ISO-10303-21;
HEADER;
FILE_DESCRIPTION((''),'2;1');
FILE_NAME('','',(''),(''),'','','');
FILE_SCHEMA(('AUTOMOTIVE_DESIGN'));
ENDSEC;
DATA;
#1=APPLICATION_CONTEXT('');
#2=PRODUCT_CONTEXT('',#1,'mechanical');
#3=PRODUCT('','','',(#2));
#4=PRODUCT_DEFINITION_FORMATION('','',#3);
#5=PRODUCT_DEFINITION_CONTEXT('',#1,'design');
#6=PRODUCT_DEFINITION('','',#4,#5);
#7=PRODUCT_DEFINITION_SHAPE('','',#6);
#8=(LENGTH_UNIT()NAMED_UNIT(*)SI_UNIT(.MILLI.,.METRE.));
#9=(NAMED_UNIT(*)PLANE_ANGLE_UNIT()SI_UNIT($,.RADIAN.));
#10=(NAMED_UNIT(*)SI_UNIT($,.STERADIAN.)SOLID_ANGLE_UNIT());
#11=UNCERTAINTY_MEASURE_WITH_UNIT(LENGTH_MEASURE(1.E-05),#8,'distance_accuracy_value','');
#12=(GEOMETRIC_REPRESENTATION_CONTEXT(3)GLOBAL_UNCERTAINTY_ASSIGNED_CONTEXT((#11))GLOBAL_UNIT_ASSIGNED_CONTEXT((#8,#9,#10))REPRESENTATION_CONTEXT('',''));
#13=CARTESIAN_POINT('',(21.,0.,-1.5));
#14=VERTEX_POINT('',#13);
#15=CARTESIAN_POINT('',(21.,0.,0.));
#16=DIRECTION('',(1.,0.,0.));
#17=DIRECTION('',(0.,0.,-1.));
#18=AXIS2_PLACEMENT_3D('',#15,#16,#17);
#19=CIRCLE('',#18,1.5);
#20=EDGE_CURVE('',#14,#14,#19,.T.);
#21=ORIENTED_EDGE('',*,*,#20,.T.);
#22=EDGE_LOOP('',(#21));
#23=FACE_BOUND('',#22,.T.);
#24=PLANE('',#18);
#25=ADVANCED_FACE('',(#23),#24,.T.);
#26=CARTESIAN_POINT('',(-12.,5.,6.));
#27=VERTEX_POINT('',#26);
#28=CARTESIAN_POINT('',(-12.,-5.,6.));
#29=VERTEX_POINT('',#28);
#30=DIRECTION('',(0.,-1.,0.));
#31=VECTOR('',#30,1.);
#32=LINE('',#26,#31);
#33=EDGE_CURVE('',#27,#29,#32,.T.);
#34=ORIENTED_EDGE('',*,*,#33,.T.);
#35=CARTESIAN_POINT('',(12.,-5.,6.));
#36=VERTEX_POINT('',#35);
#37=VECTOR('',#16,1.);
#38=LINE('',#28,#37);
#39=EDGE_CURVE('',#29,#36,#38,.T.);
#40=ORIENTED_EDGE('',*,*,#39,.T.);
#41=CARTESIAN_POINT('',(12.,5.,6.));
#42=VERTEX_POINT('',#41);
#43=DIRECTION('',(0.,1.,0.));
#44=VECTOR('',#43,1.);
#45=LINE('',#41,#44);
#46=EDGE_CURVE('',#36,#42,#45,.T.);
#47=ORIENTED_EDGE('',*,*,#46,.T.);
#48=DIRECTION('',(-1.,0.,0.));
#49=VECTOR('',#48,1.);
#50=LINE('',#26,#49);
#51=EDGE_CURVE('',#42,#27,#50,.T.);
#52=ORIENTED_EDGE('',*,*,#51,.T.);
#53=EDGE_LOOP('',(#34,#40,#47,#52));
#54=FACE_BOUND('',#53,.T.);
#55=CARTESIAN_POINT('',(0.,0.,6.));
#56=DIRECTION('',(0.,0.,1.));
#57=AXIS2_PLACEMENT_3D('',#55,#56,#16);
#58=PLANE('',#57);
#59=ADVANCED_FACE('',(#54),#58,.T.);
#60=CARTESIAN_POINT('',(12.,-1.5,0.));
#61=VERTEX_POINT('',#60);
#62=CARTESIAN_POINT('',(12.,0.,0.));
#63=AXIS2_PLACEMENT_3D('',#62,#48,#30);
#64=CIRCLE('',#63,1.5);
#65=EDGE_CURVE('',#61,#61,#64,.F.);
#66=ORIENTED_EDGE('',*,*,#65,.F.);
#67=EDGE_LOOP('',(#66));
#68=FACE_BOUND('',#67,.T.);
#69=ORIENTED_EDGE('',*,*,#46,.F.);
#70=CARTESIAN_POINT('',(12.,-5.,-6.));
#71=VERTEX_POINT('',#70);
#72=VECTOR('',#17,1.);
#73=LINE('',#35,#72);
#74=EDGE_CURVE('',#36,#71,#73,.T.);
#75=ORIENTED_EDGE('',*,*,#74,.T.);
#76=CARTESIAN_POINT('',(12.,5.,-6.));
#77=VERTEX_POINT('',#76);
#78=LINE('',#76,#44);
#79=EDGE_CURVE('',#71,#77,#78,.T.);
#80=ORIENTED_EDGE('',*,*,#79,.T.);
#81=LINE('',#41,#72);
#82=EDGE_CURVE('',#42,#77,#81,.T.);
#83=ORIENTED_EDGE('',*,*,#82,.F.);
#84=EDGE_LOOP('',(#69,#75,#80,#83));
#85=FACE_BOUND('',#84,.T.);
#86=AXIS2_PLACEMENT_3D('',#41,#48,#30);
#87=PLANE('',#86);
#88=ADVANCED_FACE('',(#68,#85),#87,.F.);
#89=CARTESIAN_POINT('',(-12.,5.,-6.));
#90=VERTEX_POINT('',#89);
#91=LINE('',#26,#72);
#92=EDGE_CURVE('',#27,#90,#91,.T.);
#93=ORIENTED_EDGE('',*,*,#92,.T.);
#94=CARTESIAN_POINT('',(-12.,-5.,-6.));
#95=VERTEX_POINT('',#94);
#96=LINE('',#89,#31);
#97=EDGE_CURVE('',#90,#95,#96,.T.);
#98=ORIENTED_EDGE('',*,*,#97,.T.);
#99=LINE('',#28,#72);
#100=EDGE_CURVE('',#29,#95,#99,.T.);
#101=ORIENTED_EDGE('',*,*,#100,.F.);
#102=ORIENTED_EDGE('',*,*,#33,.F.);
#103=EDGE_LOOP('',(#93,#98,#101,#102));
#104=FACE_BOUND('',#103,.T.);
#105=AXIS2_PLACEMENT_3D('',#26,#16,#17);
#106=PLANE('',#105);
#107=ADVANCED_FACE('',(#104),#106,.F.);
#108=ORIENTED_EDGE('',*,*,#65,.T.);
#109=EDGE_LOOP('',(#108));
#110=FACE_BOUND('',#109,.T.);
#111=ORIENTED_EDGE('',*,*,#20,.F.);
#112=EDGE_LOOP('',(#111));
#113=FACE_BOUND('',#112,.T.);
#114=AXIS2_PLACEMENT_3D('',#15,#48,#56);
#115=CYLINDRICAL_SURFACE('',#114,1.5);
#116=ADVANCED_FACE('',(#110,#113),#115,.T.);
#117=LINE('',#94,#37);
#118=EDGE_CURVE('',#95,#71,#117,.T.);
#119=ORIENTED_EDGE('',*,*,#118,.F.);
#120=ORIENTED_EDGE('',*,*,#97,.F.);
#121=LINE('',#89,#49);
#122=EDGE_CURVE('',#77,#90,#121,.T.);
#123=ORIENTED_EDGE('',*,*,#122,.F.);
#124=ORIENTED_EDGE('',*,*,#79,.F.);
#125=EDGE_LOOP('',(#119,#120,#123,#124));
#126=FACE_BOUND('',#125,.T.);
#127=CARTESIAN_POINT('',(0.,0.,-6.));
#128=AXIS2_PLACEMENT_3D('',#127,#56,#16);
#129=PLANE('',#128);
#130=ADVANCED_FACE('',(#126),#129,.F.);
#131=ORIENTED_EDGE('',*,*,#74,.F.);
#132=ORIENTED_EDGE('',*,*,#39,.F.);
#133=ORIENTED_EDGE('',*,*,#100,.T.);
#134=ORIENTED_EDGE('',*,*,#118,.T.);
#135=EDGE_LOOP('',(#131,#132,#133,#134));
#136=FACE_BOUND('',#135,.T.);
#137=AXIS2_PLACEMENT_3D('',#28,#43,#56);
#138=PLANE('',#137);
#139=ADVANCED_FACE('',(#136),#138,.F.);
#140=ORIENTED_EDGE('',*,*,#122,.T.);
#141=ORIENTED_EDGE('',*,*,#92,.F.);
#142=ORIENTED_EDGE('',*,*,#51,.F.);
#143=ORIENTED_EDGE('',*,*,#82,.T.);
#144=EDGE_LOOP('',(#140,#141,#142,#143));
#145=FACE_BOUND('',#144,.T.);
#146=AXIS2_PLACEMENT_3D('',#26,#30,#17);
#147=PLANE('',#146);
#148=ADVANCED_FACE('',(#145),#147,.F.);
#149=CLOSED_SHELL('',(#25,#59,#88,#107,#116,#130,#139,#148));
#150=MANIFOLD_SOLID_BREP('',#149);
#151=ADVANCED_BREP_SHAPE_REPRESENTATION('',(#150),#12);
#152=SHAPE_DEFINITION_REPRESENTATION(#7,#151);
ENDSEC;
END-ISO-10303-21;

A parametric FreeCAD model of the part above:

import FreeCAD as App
import Part
import Sketcher

V = App.Vector
Q = App.Units.Quantity


def add_polygon(sketch, points):
    """Adds a closed chain of lines whose ends are joined by coincident constraints."""
    first, n = sketch.GeometryCount, len(points)
    for a, b in zip(points, points[1:] + points[:1]):
        sketch.addGeometry(Part.LineSegment(App.Vector(*a, 0), App.Vector(*b, 0)), False)
    for i in range(n):
        sketch.addConstraint(Sketcher.Constraint("Coincident", first + i, 2, first + (i + 1) % n, 1))

doc = App.newDocument("Part")
params = doc.addObject("Spreadsheet::Sheet", "Params")
for row, (alias, value) in enumerate([
    ("sketch1_width", "24 mm"),
    ("sketch1_height", "10 mm"),
    ("pad1_length", "12 mm"),
    ("sketch2_diameter", "3 mm"),
    ("pad2_length", "21 mm"),
], start=1):
    params.set(f"A{row}", alias)
    params.set(f"B{row}", "=" + value)
    params.setAlias(f"B{row}", alias)

body = doc.addObject("PartDesign::Body", "Body")

# Sketch on XY plane
sketch1 = body.newObject("Sketcher::SketchObject", "Sketch")
sketch1.AttachmentSupport = (doc.getObject("XY_Plane"), [""])
sketch1.MapMode = "FlatFace"
add_polygon(sketch1, [(-12, 5), (-12, -5), (12, -5), (12, 5)])  # lines 0-3
sketch1.addConstraint([
    Sketcher.Constraint("Vertical", 0),
    Sketcher.Constraint("Horizontal", 1),
    Sketcher.Constraint("Vertical", 2),
    Sketcher.Constraint("Horizontal", 3),
    Sketcher.Constraint("Symmetric", 0, 2, 2, 2, -1, 1),
    Sketcher.Constraint("DistanceX", 1, 1, 1, 2, Q("24 mm")),
    Sketcher.Constraint("DistanceY", 0, 2, 0, 1, Q("10 mm")),
])
sketch1.setExpression("Constraints[9]", "Params.sketch1_width")
sketch1.setExpression("Constraints[10]", "Params.sketch1_height")
pad1 = body.newObject("PartDesign::Pad", "Pad")
pad1.Profile = sketch1
pad1.setExpression("Length", "Params.pad1_length")
pad1.Midplane = True

# Sketch on YZ plane
sketch2 = body.newObject("Sketcher::SketchObject", "Sketch001")
sketch2.AttachmentSupport = (doc.getObject("YZ_Plane"), [""])
sketch2.MapMode = "FlatFace"
sketch2.addGeometry(Part.Circle(V(0, 0, 0), V(0, 0, 1), 1.5), False)
sketch2.addConstraint([
    Sketcher.Constraint("Coincident", 0, 3, -1, 1),
    Sketcher.Constraint("Diameter", 0, Q("3 mm")),
])
sketch2.setExpression("Constraints[1]", "Params.sketch2_diameter")
pad2 = body.newObject("PartDesign::Pad", "Pad001")
pad2.Profile = sketch2
pad2.setExpression("Length", "Params.pad2_length")

doc.recompute()
